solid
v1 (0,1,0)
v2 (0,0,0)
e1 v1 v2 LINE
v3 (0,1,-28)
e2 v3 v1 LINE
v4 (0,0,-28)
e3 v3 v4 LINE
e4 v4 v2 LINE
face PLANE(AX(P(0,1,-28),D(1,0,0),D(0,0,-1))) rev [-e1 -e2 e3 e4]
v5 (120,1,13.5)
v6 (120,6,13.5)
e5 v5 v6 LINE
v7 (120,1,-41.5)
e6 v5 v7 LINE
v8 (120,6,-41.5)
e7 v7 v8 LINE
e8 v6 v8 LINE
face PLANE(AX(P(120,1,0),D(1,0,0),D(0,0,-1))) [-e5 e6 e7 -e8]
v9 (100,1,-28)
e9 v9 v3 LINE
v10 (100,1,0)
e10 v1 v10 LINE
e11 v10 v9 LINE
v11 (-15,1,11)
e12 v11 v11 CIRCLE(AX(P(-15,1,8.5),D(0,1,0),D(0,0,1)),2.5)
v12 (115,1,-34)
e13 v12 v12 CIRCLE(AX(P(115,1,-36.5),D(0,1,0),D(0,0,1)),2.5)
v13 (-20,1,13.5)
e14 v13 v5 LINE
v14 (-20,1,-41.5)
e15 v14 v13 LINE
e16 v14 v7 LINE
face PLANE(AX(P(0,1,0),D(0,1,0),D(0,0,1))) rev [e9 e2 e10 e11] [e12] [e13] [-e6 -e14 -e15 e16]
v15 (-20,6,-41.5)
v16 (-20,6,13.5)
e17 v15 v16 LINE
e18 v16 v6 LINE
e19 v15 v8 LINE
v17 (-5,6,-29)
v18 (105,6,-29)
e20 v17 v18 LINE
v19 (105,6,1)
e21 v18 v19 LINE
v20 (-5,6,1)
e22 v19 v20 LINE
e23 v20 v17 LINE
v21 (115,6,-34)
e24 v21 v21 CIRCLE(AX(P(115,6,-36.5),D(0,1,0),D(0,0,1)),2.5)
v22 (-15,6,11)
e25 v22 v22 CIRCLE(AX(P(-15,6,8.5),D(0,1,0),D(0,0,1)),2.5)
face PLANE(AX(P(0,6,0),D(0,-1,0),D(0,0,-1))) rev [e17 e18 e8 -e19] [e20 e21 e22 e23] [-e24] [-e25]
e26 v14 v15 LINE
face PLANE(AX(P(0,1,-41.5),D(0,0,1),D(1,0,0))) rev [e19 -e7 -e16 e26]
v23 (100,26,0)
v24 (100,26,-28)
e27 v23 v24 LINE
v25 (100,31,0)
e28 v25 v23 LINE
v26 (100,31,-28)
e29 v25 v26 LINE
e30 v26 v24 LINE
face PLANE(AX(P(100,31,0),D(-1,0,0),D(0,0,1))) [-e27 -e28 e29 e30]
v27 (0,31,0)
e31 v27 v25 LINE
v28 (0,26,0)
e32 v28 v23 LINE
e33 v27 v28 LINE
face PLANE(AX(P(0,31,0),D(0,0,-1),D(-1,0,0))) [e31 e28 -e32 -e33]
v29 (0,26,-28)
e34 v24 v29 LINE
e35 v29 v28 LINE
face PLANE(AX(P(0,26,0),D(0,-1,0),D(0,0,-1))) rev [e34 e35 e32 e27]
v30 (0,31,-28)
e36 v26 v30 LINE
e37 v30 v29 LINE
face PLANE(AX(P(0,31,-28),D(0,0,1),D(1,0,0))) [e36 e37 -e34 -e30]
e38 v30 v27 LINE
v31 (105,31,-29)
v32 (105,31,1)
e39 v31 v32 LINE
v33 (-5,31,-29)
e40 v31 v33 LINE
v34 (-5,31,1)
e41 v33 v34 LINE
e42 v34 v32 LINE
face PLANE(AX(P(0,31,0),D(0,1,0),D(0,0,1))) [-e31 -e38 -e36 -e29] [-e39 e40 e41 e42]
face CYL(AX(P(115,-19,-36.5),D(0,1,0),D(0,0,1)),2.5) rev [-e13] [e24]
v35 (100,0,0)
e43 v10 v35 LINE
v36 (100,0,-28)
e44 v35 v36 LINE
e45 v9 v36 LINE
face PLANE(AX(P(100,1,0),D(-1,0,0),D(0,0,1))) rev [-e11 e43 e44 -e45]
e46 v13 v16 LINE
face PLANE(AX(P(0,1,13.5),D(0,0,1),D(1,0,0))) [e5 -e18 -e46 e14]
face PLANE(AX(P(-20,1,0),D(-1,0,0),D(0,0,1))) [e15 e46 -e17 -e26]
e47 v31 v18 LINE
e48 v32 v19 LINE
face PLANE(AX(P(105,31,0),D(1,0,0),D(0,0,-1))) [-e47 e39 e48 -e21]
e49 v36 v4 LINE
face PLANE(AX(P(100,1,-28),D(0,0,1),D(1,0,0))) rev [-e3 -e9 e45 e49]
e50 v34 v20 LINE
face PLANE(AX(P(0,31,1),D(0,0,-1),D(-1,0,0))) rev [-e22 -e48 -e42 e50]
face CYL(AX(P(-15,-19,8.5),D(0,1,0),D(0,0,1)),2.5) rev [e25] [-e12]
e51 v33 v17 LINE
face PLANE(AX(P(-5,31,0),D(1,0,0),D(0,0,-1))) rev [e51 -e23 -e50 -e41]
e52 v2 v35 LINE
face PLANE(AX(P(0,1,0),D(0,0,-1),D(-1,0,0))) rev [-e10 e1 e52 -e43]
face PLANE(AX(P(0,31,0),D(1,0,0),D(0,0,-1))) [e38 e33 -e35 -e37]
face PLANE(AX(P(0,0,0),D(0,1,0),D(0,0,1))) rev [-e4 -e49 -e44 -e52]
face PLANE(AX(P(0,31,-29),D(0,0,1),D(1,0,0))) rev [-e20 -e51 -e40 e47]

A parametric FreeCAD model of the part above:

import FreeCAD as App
import Part
import Sketcher

V = App.Vector
Q = App.Units.Quantity

doc = App.newDocument("Part")
body = doc.addObject("PartDesign::Body", "Body")

sketch1 = body.newObject("Sketcher::SketchObject", "Sketch")
sketch1.AttachmentSupport = (doc.getObject("XZ_Plane"), [""])
sketch1.MapMode = "FlatFace"
sketch1.addGeometry(Part.LineSegment(V(0, -28, 0), V(0, 0, 0)), False)
sketch1.addGeometry(Part.LineSegment(V(0, 0, 0), V(100, 0, 0)), False)
sketch1.addGeometry(Part.LineSegment(V(100, 0, 0), V(100, -28, 0)), False)
sketch1.addGeometry(Part.LineSegment(V(100, -28, 0), V(0, -28, 0)), False)
sketch1.addConstraint(Sketcher.Constraint("Coincident", 0, 2, 1, 1))
sketch1.addConstraint(Sketcher.Constraint("Coincident", 1, 2, 2, 1))
sketch1.addConstraint(Sketcher.Constraint("Coincident", 2, 2, 3, 1))
sketch1.addConstraint(Sketcher.Constraint("Coincident", 3, 2, 0, 1))
sketch1.addConstraint(Sketcher.Constraint("Vertical", 0))
sketch1.addConstraint(Sketcher.Constraint("Horizontal", 1))
sketch1.addConstraint(Sketcher.Constraint("Vertical", 2))
sketch1.addConstraint(Sketcher.Constraint("Horizontal", 3))
sketch1.addConstraint(Sketcher.Constraint("Coincident", 0, 2, -1, 1))
sketch1.addConstraint(Sketcher.Constraint("DistanceX", 1, 1, 1, 2, Q("100 mm")))
sketch1.addConstraint(Sketcher.Constraint("DistanceY", 0, 1, 0, 2, Q("28 mm")))
pad1 = body.newObject("PartDesign::Pad", "Pad")
pad1.Profile = sketch1
pad1.Length = 1
pad1.Reversed = True
body2 = doc.addObject("PartDesign::Body", "Body001")

sketch2 = body2.newObject("Sketcher::SketchObject", "Sketch001")
sketch2.AttachmentSupport = (doc.getObject("XZ_Plane001"), [""])
sketch2.MapMode = "FlatFace"
sketch2.AttachmentOffset = App.Placement(V(0, 0, -1), App.Rotation())
sketch2.addGeometry(Part.LineSegment(V(105, 1, 0), V(105, -29, 0)), False)
sketch2.addGeometry(Part.LineSegment(V(105, -29, 0), V(-5, -29, 0)), False)
sketch2.addGeometry(Part.LineSegment(V(-5, -29, 0), V(-5, 1, 0)), False)
sketch2.addGeometry(Part.LineSegment(V(-5, 1, 0), V(105, 1, 0)), False)
sketch2.addGeometry(Part.LineSegment(V(0, -28, 0), V(100, -28, 0)), False)
sketch2.addGeometry(Part.LineSegment(V(100, -28, 0), V(100, 0, 0)), False)
sketch2.addGeometry(Part.LineSegment(V(100, 0, 0), V(0, 0, 0)), False)
sketch2.addGeometry(Part.LineSegment(V(0, 0, 0), V(0, -28, 0)), False)
sketch2.addConstraint(Sketcher.Constraint("Coincident", 0, 2, 1, 1))
sketch2.addConstraint(Sketcher.Constraint("Coincident", 1, 2, 2, 1))
sketch2.addConstraint(Sketcher.Constraint("Coincident", 2, 2, 3, 1))
sketch2.addConstraint(Sketcher.Constraint("Coincident", 3, 2, 0, 1))
sketch2.addConstraint(Sketcher.Constraint("Coincident", 4, 2, 5, 1))
sketch2.addConstraint(Sketcher.Constraint("Coincident", 5, 2, 6, 1))
sketch2.addConstraint(Sketcher.Constraint("Coincident", 6, 2, 7, 1))
sketch2.addConstraint(Sketcher.Constraint("Coincident", 7, 2, 4, 1))
sketch2.addConstraint(Sketcher.Constraint("Vertical", 0))
sketch2.addConstraint(Sketcher.Constraint("Horizontal", 1))
sketch2.addConstraint(Sketcher.Constraint("Vertical", 2))
sketch2.addConstraint(Sketcher.Constraint("Horizontal", 3))
sketch2.addConstraint(Sketcher.Constraint("Horizontal", 4))
sketch2.addConstraint(Sketcher.Constraint("Vertical", 5))
sketch2.addConstraint(Sketcher.Constraint("Horizontal", 6))
sketch2.addConstraint(Sketcher.Constraint("Vertical", 7))
sketch2.addConstraint(Sketcher.Constraint("Coincident", 6, 2, -1, 1))
sketch2.addConstraint(Sketcher.Constraint("DistanceX", 1, 2, 1, 1, Q("110 mm")))
sketch2.addConstraint(Sketcher.Constraint("DistanceX", 4, 1, 4, 2, Q("100 mm")))
sketch2.addConstraint(Sketcher.Constraint("DistanceY", 0, 2, 0, 1, Q("30 mm")))
sketch2.addConstraint(Sketcher.Constraint("DistanceY", 5, 1, 5, 2, Q("28 mm")))
sketch2.addConstraint(Sketcher.Constraint("DistanceX", -1, 1, 0, 2, Q("105 mm")))
sketch2.addConstraint(Sketcher.Constraint("DistanceY", 0, 2, -1, 1, Q("29 mm")))
pad2 = body2.newObject("PartDesign::Pad", "Pad001")
pad2.Profile = sketch2
pad2.Length = 30
pad2.Reversed = True

sketch3 = body2.newObject("Sketcher::SketchObject", "Sketch002")
sketch3.AttachmentSupport = (doc.getObject("XZ_Plane001"), [""])
sketch3.MapMode = "FlatFace"
sketch3.AttachmentOffset = App.Placement(V(0, 0, -1), App.Rotation())
sketch3.addGeometry(Part.LineSegment(V(110, -31.5, 0), V(110, 3.5, 0)), False)
sketch3.addGeometry(Part.LineSegment(V(110, 3.5, 0), V(-10, 3.5, 0)), False)
sketch3.addGeometry(Part.LineSegment(V(-10, 3.5, 0), V(-10, -31.5, 0)), False)
sketch3.addGeometry(Part.LineSegment(V(-10, -31.5, 0), V(110, -31.5, 0)), False)
sketch3.addGeometry(Part.LineSegment(V(105, 1, 0), V(105, -29, 0)), False)
sketch3.addGeometry(Part.LineSegment(V(105, -29, 0), V(-5, -29, 0)), False)
sketch3.addGeometry(Part.LineSegment(V(-5, -29, 0), V(-5, 1, 0)), False)
sketch3.addGeometry(Part.LineSegment(V(-5, 1, 0), V(105, 1, 0)), False)
sketch3.addConstraint(Sketcher.Constraint("Coincident", 0, 2, 1, 1))
sketch3.addConstraint(Sketcher.Constraint("Coincident", 1, 2, 2, 1))
sketch3.addConstraint(Sketcher.Constraint("Coincident", 2, 2, 3, 1))
sketch3.addConstraint(Sketcher.Constraint("Coincident", 3, 2, 0, 1))
sketch3.addConstraint(Sketcher.Constraint("Coincident", 4, 2, 5, 1))
sketch3.addConstraint(Sketcher.Constraint("Coincident", 5, 2, 6, 1))
sketch3.addConstraint(Sketcher.Constraint("Coincident", 6, 2, 7, 1))
sketch3.addConstraint(Sketcher.Constraint("Coincident", 7, 2, 4, 1))
sketch3.addConstraint(Sketcher.Constraint("Vertical", 0))
sketch3.addConstraint(Sketcher.Constraint("Horizontal", 1))
sketch3.addConstraint(Sketcher.Constraint("Vertical", 2))
sketch3.addConstraint(Sketcher.Constraint("Horizontal", 3))
sketch3.addConstraint(Sketcher.Constraint("Vertical", 4))
sketch3.addConstraint(Sketcher.Constraint("Horizontal", 5))
sketch3.addConstraint(Sketcher.Constraint("Vertical", 6))
sketch3.addConstraint(Sketcher.Constraint("Horizontal", 7))
sketch3.addConstraint(Sketcher.Constraint("DistanceX", 1, 2, 1, 1, Q("120 mm")))
sketch3.addConstraint(Sketcher.Constraint("DistanceX", 5, 2, 5, 1, Q("110 mm")))
sketch3.addConstraint(Sketcher.Constraint("DistanceY", 0, 1, 0, 2, Q("35 mm")))
sketch3.addConstraint(Sketcher.Constraint("DistanceY", 4, 2, 4, 1, Q("30 mm")))
sketch3.addConstraint(Sketcher.Constraint("DistanceX", -1, 1, 0, 2, Q("110 mm")))
sketch3.addConstraint(Sketcher.Constraint("DistanceX", -1, 1, 4, 2, Q("105 mm")))
sketch3.addConstraint(Sketcher.Constraint("DistanceY", 4, 2, -1, 1, Q("29 mm")))
sketch3.addConstraint(Sketcher.Constraint("DistanceY", -1, 1, 0, 2, Q("3.5 mm")))
pad3 = body2.newObject("PartDesign::Pad", "Pad002")
pad3.Profile = sketch3
pad3.Length = 5
pad3.Reversed = True

sketch4 = body2.newObject("Sketcher::SketchObject", "Sketch003")
sketch4.AttachmentSupport = (doc.getObject("XZ_Plane001"), [""])
sketch4.MapMode = "FlatFace"
sketch4.AttachmentOffset = App.Placement(V(0, 0, -6), App.Rotation())
sketch4.addGeometry(Part.LineSegment(V(-20, -41.5, 0), V(-20, 13.5, 0)), False)
sketch4.addGeometry(Part.LineSegment(V(-20, 13.5, 0), V(120, 13.5, 0)), False)
sketch4.addGeometry(Part.LineSegment(V(120, 13.5, 0), V(120, -41.5, 0)), False)
sketch4.addGeometry(Part.LineSegment(V(120, -41.5, 0), V(-20, -41.5, 0)), False)
sketch4.addGeometry(Part.LineSegment(V(105, 1, 0), V(-5, 1, 0)), False)
sketch4.addGeometry(Part.LineSegment(V(-5, 1, 0), V(-5, -29, 0)), False)
sketch4.addGeometry(Part.LineSegment(V(-5, -29, 0), V(105, -29, 0)), False)
sketch4.addGeometry(Part.LineSegment(V(105, -29, 0), V(105, 1, 0)), False)
sketch4.addConstraint(Sketcher.Constraint("Coincident", 0, 2, 1, 1))
sketch4.addConstraint(Sketcher.Constraint("Coincident", 1, 2, 2, 1))
sketch4.addConstraint(Sketcher.Constraint("Coincident", 2, 2, 3, 1))
sketch4.addConstraint(Sketcher.Constraint("Coincident", 3, 2, 0, 1))
sketch4.addConstraint(Sketcher.Constraint("Coincident", 4, 2, 5, 1))
sketch4.addConstraint(Sketcher.Constraint("Coincident", 5, 2, 6, 1))
sketch4.addConstraint(Sketcher.Constraint("Coincident", 6, 2, 7, 1))
sketch4.addConstraint(Sketcher.Constraint("Coincident", 7, 2, 4, 1))
sketch4.addConstraint(Sketcher.Constraint("Vertical", 0))
sketch4.addConstraint(Sketcher.Constraint("Horizontal", 1))
sketch4.addConstraint(Sketcher.Constraint("Vertical", 2))
sketch4.addConstraint(Sketcher.Constraint("Horizontal", 3))
sketch4.addConstraint(Sketcher.Constraint("Horizontal", 4))
sketch4.addConstraint(Sketcher.Constraint("Vertical", 5))
sketch4.addConstraint(Sketcher.Constraint("Horizontal", 6))
sketch4.addConstraint(Sketcher.Constraint("Vertical", 7))
sketch4.addConstraint(Sketcher.Constraint("DistanceX", 1, 1, 1, 2, Q("140 mm")))
sketch4.addConstraint(Sketcher.Constraint("DistanceX", 4, 2, 4, 1, Q("110 mm")))
sketch4.addConstraint(Sketcher.Constraint("DistanceY", 0, 1, 0, 2, Q("55 mm")))
sketch4.addConstraint(Sketcher.Constraint("DistanceY", 5, 2, 5, 1, Q("30 mm")))
sketch4.addConstraint(Sketcher.Constraint("DistanceX", 0, 2, -1, 1, Q("20 mm")))
sketch4.addConstraint(Sketcher.Constraint("DistanceX", 4, 2, -1, 1, Q("5 mm")))
sketch4.addConstraint(Sketcher.Constraint("DistanceY", -1, 1, 4, 2, Q("1 mm")))
sketch4.addConstraint(Sketcher.Constraint("DistanceY", -1, 1, 0, 2, Q("13.5 mm")))
pad4 = body2.newObject("PartDesign::Pad", "Pad003")
pad4.Profile = sketch4
pad4.Length = 5
body.AllowCompound = True
doc.recompute()

boolean = body.newObject("PartDesign::Boolean", "Boolean")
boolean.Type = "Fuse"
boolean.addObjects([body2])

sketch5 = body.newObject("Sketcher::SketchObject", "Sketch004")
sketch5.AttachmentSupport = (doc.getObject("XZ_Plane"), [""])
sketch5.MapMode = "FlatFace"
sketch5.AttachmentOffset = App.Placement(V(0, 0, -1), App.Rotation())
sketch5.addGeometry(Part.LineSegment(V(0, -28, 0), V(0, 0, 0)), False)
sketch5.addGeometry(Part.LineSegment(V(0, 0, 0), V(100, 0, 0)), False)
sketch5.addGeometry(Part.LineSegment(V(100, 0, 0), V(100, -28, 0)), False)
sketch5.addGeometry(Part.LineSegment(V(100, -28, 0), V(0, -28, 0)), False)
sketch5.addConstraint(Sketcher.Constraint("Coincident", 0, 2, 1, 1))
sketch5.addConstraint(Sketcher.Constraint("Coincident", 1, 2, 2, 1))
sketch5.addConstraint(Sketcher.Constraint("Coincident", 2, 2, 3, 1))
sketch5.addConstraint(Sketcher.Constraint("Coincident", 3, 2, 0, 1))
sketch5.addConstraint(Sketcher.Constraint("Vertical", 0))
sketch5.addConstraint(Sketcher.Constraint("Horizontal", 1))
sketch5.addConstraint(Sketcher.Constraint("Vertical", 2))
sketch5.addConstraint(Sketcher.Constraint("Horizontal", 3))
sketch5.addConstraint(Sketcher.Constraint("Coincident", 0, 2, -1, 1))
sketch5.addConstraint(Sketcher.Constraint("DistanceX", 1, 1, 1, 2, Q("100 mm")))
sketch5.addConstraint(Sketcher.Constraint("DistanceY", 0, 1, 0, 2, Q("28 mm")))
pad5 = body.newObject("PartDesign::Pad", "Pad004")
pad5.Profile = sketch5
pad5.Length = 25
pad5.Reversed = True

sketch6 = body.newObject("Sketcher::SketchObject", "Sketch005")
sketch6.AttachmentSupport = (doc.getObject("XZ_Plane"), [""])
sketch6.MapMode = "FlatFace"
sketch6.AttachmentOffset = App.Placement(V(0, 0, -6), App.Rotation())
sketch6.addGeometry(Part.Circle(V(115, -36.5, 0), V(0, 0, 1), 2.5), False)
sketch6.addGeometry(Part.Circle(V(-15, 8.5, 0), V(0, 0, 1), 2.5), False)
sketch6.addConstraint(Sketcher.Constraint("Equal", 0, 1))
sketch6.addConstraint(Sketcher.Constraint("Diameter", 0, Q("5 mm")))
sketch6.addConstraint(Sketcher.Constraint("DistanceX", -1, 1, 0, 3, Q("115 mm")))
sketch6.addConstraint(Sketcher.Constraint("DistanceX", 1, 3, -1, 1, Q("15 mm")))
sketch6.addConstraint(Sketcher.Constraint("DistanceY", 0, 3, 1, 3, Q("45 mm")))
sketch6.addConstraint(Sketcher.Constraint("DistanceY", 0, 3, -1, 1, Q("36.5 mm")))
pocket1 = body.newObject("PartDesign::Pocket", "Pocket")
pocket1.Profile = sketch6
pocket1.Length = 25
pocket1.Reversed = True

doc.recompute()
